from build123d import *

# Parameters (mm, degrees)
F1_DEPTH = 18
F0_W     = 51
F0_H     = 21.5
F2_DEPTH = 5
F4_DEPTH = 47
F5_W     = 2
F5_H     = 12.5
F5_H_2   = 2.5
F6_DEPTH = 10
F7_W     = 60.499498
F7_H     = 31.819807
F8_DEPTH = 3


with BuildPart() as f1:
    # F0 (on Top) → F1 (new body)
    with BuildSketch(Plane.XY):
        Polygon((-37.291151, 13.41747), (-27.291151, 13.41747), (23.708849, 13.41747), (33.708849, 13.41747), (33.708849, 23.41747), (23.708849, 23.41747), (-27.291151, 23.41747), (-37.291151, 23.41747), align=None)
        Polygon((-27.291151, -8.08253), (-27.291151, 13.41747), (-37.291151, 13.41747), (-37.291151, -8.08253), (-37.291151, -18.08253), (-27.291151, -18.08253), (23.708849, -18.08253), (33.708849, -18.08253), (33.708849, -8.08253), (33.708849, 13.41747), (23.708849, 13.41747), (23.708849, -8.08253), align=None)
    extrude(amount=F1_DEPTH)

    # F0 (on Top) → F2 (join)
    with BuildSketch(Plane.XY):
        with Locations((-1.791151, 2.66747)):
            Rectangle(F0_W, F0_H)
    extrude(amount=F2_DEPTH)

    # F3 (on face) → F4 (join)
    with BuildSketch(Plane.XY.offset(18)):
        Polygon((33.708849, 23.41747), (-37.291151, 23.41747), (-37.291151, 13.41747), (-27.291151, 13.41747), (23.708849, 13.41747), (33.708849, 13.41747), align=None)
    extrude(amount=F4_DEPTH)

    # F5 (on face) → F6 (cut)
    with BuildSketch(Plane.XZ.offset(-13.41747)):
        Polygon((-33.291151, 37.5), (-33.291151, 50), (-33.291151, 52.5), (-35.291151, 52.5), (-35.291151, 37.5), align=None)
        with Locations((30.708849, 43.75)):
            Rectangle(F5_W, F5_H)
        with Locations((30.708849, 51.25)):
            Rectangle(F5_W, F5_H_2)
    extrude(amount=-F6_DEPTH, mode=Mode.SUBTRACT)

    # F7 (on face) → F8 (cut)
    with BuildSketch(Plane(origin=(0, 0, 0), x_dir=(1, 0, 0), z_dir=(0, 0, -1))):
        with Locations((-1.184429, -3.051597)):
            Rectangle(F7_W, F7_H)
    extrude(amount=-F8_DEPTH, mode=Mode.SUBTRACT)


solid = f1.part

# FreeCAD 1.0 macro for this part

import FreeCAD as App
import Part
import Sketcher


def add_polygon(sketch, points):
    """Adds a closed chain of lines whose ends are joined by coincident constraints."""
    first, n = sketch.GeometryCount, len(points)
    for a, b in zip(points, points[1:] + points[:1]):
        sketch.addGeometry(Part.LineSegment(App.Vector(*a, 0), App.Vector(*b, 0)), False)
    for i in range(n):
        sketch.addConstraint(Sketcher.Constraint("Coincident", first + i, 2, first + (i + 1) % n, 1))

doc = App.newDocument("Part")
body = doc.addObject("PartDesign::Body", "Body")

# Sketch on XY plane
sketch1 = body.newObject("Sketcher::SketchObject", "Sketch")
sketch1.AttachmentSupport = (doc.getObject("XY_Plane"), [""])
sketch1.MapMode = "FlatFace"
add_polygon(sketch1, [(33.708849, 23.41747), (-37.291151, 23.41747), (-37.291151, -18.08253), (33.708849, -18.08253)])  # lines 0-3
add_polygon(sketch1, [(-27.291151, 13.41747), (23.708849, 13.41747), (23.708849, -8.08253), (-27.291151, -8.08253)])  # lines 4-7
sketch1.addConstraint([
    Sketcher.Constraint("Horizontal", 0),
    Sketcher.Constraint("Vertical", 1),
    Sketcher.Constraint("Horizontal", 2),
    Sketcher.Constraint("Vertical", 3),
    Sketcher.Constraint("Horizontal", 4),
    Sketcher.Constraint("Vertical", 5),
    Sketcher.Constraint("Horizontal", 6),
    Sketcher.Constraint("Vertical", 7),
    Sketcher.Constraint("DistanceX", 0, 2, 0, 1, 71.0),
    Sketcher.Constraint("DistanceX", 4, 1, 4, 2, 51.0),
    Sketcher.Constraint("DistanceY", 1, 2, 1, 1, 41.5),
    Sketcher.Constraint("DistanceY", 5, 2, 5, 1, 21.5),
    Sketcher.Constraint("DistanceX", 4, 2, 3, 2, 10.0),
    Sketcher.Constraint("DistanceY", 4, 2, 3, 2, 10.0),
    Sketcher.Constraint("DistanceX", 0, 2, -1, 1, 37.291151),
    Sketcher.Constraint("DistanceY", -1, 1, 0, 2, 23.41747),
])
pad1 = body.newObject("PartDesign::Pad", "Pad")
pad1.Profile = sketch1
pad1.Length = 18

# Sketch on XY plane
sketch2 = body.newObject("Sketcher::SketchObject", "Sketch001")
sketch2.AttachmentSupport = (doc.getObject("XY_Plane"), [""])
sketch2.MapMode = "FlatFace"
add_polygon(sketch2, [(-27.291151, 13.41747), (-27.291151, -8.08253), (23.708849, -8.08253), (23.708849, 13.41747)])  # lines 0-3
sketch2.addConstraint([
    Sketcher.Constraint("Vertical", 0),
    Sketcher.Constraint("Horizontal", 1),
    Sketcher.Constraint("Vertical", 2),
    Sketcher.Constraint("Horizontal", 3),
    Sketcher.Constraint("DistanceX", 1, 1, 1, 2, 51.0),
    Sketcher.Constraint("DistanceY", 0, 2, 0, 1, 21.5),
    Sketcher.Constraint("DistanceX", 0, 2, -1, 1, 27.291151),
    Sketcher.Constraint("DistanceY", 0, 2, -1, 1, 8.08253),
])
pad2 = body.newObject("PartDesign::Pad", "Pad001")
pad2.Profile = sketch2
pad2.Length = 5

# Sketch on XY plane
sketch3 = body.newObject("Sketcher::SketchObject", "Sketch002")
sketch3.AttachmentSupport = (doc.getObject("XY_Plane"), [""])
sketch3.MapMode = "FlatFace"
sketch3.AttachmentOffset = App.Placement(App.Vector(0, 0, 18), App.Rotation())
add_polygon(sketch3, [(33.708849, 23.41747), (-37.291151, 23.41747), (-37.291151, 13.41747), (33.708849, 13.41747)])  # lines 0-3
sketch3.addConstraint([
    Sketcher.Constraint("Horizontal", 0),
    Sketcher.Constraint("Vertical", 1),
    Sketcher.Constraint("Horizontal", 2),
    Sketcher.Constraint("Vertical", 3),
    Sketcher.Constraint("DistanceX", 0, 2, 0, 1, 71.0),
    Sketcher.Constraint("DistanceY", 1, 2, 1, 1, 10.0),
    Sketcher.Constraint("DistanceX", 0, 2, -1, 1, 37.291151),
    Sketcher.Constraint("DistanceY", -1, 1, 0, 2, 23.41747),
])
pad3 = body.newObject("PartDesign::Pad", "Pad002")
pad3.Profile = sketch3
pad3.Length = 47

# Sketch on XZ plane
sketch4 = body.newObject("Sketcher::SketchObject", "Sketch003")
sketch4.AttachmentSupport = (doc.getObject("XZ_Plane"), [""])
sketch4.MapMode = "FlatFace"
sketch4.AttachmentOffset = App.Placement(App.Vector(0, 0, -13.41747), App.Rotation())
add_polygon(sketch4, [(-33.291151, 37.5), (-33.291151, 52.5), (-35.291151, 52.5), (-35.291151, 37.5)])  # lines 0-3
add_polygon(sketch4, [(29.708849, 37.5), (31.708849, 37.5), (31.708849, 52.5), (29.708849, 52.5)])  # lines 4-7
sketch4.addConstraint([
    Sketcher.Constraint("Vertical", 0),
    Sketcher.Constraint("Horizontal", 1),
    Sketcher.Constraint("Vertical", 2),
    Sketcher.Constraint("Horizontal", 3),
    Sketcher.Constraint("Horizontal", 4),
    Sketcher.Constraint("Vertical", 5),
    Sketcher.Constraint("Horizontal", 6),
    Sketcher.Constraint("Vertical", 7),
    Sketcher.Constraint("Horizontal", 3, 2, 4, 2),
    Sketcher.Constraint("Horizontal", 1, 2, 5, 2),
    Sketcher.Constraint("Equal", 3, 4),
    Sketcher.Constraint("DistanceX", 1, 2, 1, 1, 2.0),
    Sketcher.Constraint("DistanceY", 0, 1, 0, 2, 15.0),
    Sketcher.Constraint("DistanceX", 3, 2, 4, 2, 65.0),
    Sketcher.Constraint("DistanceY", -1, 1, 0, 2, 52.5),
    Sketcher.Constraint("DistanceX", 0, 2, -1, 1, 33.291151),
])
pocket1 = body.newObject("PartDesign::Pocket", "Pocket")
pocket1.Profile = sketch4
pocket1.Length = 10

# Sketch on XY plane
sketch5 = body.newObject("Sketcher::SketchObject", "Sketch004")
sketch5.AttachmentSupport = (doc.getObject("XY_Plane"), [""])
sketch5.MapMode = "FlatFace"
add_polygon(sketch5, [(-31.434178, -12.858306), (-31.434178, 18.9615), (29.06532, 18.9615), (29.06532, -12.858306)])  # lines 0-3
sketch5.addConstraint([
    Sketcher.Constraint("Vertical", 0),
    Sketcher.Constraint("Horizontal", 1),
    Sketcher.Constraint("Vertical", 2),
    Sketcher.Constraint("Horizontal", 3),
    Sketcher.Constraint("DistanceX", 1, 1, 1, 2, 60.499498),
    Sketcher.Constraint("DistanceY", -1, 1, 0, 2, 18.9615),
    Sketcher.Constraint("DistanceY", 0, 1, 0, 2, 31.819807),
    Sketcher.Constraint("DistanceX", -1, 1, 1, 2, 29.06532),
])
pocket2 = body.newObject("PartDesign::Pocket", "Pocket001")
pocket2.Profile = sketch5
pocket2.Length = 3
pocket2.Reversed = True

doc.recompute()
